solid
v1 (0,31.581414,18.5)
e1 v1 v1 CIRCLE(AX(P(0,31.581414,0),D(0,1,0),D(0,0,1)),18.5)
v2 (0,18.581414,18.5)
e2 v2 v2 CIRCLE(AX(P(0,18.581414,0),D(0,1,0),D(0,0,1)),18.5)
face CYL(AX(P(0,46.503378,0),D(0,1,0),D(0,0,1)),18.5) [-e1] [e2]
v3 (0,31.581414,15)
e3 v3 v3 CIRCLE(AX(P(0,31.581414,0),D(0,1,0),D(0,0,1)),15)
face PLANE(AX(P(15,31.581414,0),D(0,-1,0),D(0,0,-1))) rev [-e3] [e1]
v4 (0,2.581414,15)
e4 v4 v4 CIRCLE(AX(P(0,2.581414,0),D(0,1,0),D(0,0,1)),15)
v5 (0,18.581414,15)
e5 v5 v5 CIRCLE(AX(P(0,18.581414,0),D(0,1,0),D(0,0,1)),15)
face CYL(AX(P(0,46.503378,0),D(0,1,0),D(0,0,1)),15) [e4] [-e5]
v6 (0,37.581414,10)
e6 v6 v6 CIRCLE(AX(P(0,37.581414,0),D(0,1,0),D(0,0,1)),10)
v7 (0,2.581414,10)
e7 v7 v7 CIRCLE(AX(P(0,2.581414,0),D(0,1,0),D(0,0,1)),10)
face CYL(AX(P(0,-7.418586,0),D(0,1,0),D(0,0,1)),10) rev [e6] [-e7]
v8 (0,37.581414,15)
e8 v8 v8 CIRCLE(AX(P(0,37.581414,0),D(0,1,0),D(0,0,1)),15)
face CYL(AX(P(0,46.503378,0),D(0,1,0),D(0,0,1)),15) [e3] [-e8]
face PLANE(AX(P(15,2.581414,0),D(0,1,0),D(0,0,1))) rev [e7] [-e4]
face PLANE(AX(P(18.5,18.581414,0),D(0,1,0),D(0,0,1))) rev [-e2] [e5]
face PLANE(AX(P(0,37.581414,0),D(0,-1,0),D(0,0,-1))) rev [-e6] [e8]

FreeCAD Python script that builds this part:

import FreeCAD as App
import Part
import Sketcher

doc = App.newDocument("Part")
params = doc.addObject("Spreadsheet::Sheet", "Params")
for row, (alias, value) in enumerate([
    ("sketch1_width", "15 mm"),
    ("sketch1_height", "35 mm"),
    ("sketch1_height2", "16 mm"),
    ("sketch1_height3", "13 mm"),
    ("sketch1_width2", "3.5 mm"),
    ("revolution_angle", "360 deg"),
    ("sketch2_diameter", "20 mm"),
    ("pocket1_length", "45 mm"),
], start=1):
    params.set(f"A{row}", alias)
    params.set(f"B{row}", "=" + value)
    params.setAlias(f"B{row}", alias)

body = doc.addObject("PartDesign::Body", "Body")

sketch1 = doc.addObject("Sketcher::SketchObject", "Sketch")
body.addObject(sketch1)
sketch1.AttachmentSupport = (doc.XY_Plane, [""])
sketch1.MapMode = "FlatFace"
sketch1.addGeometry([
    Part.LineSegment(App.Vector(15, 37.581414, 0), App.Vector(0, 37.581414, 0)),
    Part.LineSegment(App.Vector(0, 37.581414, 0), App.Vector(0, 2.581414, 0)),
    Part.LineSegment(App.Vector(0, 2.581414, 0), App.Vector(15, 2.581414, 0)),
    Part.LineSegment(App.Vector(15, 2.581414, 0), App.Vector(15, 18.581414, 0)),
    Part.LineSegment(App.Vector(15, 18.581414, 0), App.Vector(18.5, 18.581414, 0)),
    Part.LineSegment(App.Vector(18.5, 18.581414, 0), App.Vector(18.5, 31.581414, 0)),
    Part.LineSegment(App.Vector(18.5, 31.581414, 0), App.Vector(15, 31.581414, 0)),
    Part.LineSegment(App.Vector(15, 31.581414, 0), App.Vector(15, 37.581414, 0)),
], False)
sketch1.addConstraint([
    Sketcher.Constraint("Coincident", 0, 2, 1, 1),
    Sketcher.Constraint("Coincident", 1, 2, 2, 1),
    Sketcher.Constraint("Coincident", 2, 2, 3, 1),
    Sketcher.Constraint("Coincident", 3, 2, 4, 1),
    Sketcher.Constraint("Coincident", 4, 2, 5, 1),
    Sketcher.Constraint("Coincident", 5, 2, 6, 1),
    Sketcher.Constraint("Coincident", 6, 2, 7, 1),
    Sketcher.Constraint("Coincident", 7, 2, 0, 1),
    Sketcher.Constraint("Horizontal", 0),
    Sketcher.Constraint("Vertical", 1),
    Sketcher.Constraint("Horizontal", 2),
    Sketcher.Constraint("Vertical", 3),
    Sketcher.Constraint("Horizontal", 4),
    Sketcher.Constraint("Vertical", 5),
    Sketcher.Constraint("Horizontal", 6),
    Sketcher.Constraint("Vertical", 7),
    Sketcher.Constraint("PointOnObject", 0, 2, -2),
    Sketcher.Constraint("Vertical", 3, 2, 6, 2),
    Sketcher.Constraint("DistanceX", 0, 2, 0, 1, 15.0),
    Sketcher.Constraint("DistanceY", 1, 2, 1, 1, 35.0),
    Sketcher.Constraint("DistanceY", 3, 1, 3, 2, 16.0),
    Sketcher.Constraint("DistanceY", 5, 1, 5, 2, 13.0),
    Sketcher.Constraint("DistanceX", 4, 1, 4, 2, 3.5),
    Sketcher.Constraint("DistanceY", -1, 1, 0, 2, 37.581414),
])
sketch1.setExpression("Constraints[18]", "Params.sketch1_width")
sketch1.setExpression("Constraints[19]", "Params.sketch1_height")
sketch1.setExpression("Constraints[20]", "Params.sketch1_height2")
sketch1.setExpression("Constraints[21]", "Params.sketch1_height3")
sketch1.setExpression("Constraints[22]", "Params.sketch1_width2")
revolution = doc.addObject("PartDesign::Revolution", "Revolution")
body.addObject(revolution)
revolution.Profile = sketch1
revolution.ReferenceAxis = (sketch1, ["V_Axis"])
revolution.setExpression("Angle", "Params.revolution_angle")

sketch2 = doc.addObject("Sketcher::SketchObject", "Sketch001")
body.addObject(sketch2)
sketch2.AttachmentSupport = (doc.XZ_Plane, [""])
sketch2.MapMode = "FlatFace"
sketch2.AttachmentOffset = App.Placement(App.Vector(0, 0, -37.581414), App.Rotation())
sketch2.addGeometry(Part.Circle(App.Vector(0, 0, 0), App.Vector(0, 0, 1), 10), False)
sketch2.addConstraint([
    Sketcher.Constraint("Coincident", 0, 3, -1, 1),
    Sketcher.Constraint("Diameter", 0, 20.0),
])
sketch2.setExpression("Constraints[1]", "Params.sketch2_diameter")
pocket1 = doc.addObject("PartDesign::Pocket", "Pocket")
body.addObject(pocket1)
pocket1.Profile = sketch2
pocket1.setExpression("Length", "Params.pocket1_length")
pocket1.Reversed = True

doc.recompute()
